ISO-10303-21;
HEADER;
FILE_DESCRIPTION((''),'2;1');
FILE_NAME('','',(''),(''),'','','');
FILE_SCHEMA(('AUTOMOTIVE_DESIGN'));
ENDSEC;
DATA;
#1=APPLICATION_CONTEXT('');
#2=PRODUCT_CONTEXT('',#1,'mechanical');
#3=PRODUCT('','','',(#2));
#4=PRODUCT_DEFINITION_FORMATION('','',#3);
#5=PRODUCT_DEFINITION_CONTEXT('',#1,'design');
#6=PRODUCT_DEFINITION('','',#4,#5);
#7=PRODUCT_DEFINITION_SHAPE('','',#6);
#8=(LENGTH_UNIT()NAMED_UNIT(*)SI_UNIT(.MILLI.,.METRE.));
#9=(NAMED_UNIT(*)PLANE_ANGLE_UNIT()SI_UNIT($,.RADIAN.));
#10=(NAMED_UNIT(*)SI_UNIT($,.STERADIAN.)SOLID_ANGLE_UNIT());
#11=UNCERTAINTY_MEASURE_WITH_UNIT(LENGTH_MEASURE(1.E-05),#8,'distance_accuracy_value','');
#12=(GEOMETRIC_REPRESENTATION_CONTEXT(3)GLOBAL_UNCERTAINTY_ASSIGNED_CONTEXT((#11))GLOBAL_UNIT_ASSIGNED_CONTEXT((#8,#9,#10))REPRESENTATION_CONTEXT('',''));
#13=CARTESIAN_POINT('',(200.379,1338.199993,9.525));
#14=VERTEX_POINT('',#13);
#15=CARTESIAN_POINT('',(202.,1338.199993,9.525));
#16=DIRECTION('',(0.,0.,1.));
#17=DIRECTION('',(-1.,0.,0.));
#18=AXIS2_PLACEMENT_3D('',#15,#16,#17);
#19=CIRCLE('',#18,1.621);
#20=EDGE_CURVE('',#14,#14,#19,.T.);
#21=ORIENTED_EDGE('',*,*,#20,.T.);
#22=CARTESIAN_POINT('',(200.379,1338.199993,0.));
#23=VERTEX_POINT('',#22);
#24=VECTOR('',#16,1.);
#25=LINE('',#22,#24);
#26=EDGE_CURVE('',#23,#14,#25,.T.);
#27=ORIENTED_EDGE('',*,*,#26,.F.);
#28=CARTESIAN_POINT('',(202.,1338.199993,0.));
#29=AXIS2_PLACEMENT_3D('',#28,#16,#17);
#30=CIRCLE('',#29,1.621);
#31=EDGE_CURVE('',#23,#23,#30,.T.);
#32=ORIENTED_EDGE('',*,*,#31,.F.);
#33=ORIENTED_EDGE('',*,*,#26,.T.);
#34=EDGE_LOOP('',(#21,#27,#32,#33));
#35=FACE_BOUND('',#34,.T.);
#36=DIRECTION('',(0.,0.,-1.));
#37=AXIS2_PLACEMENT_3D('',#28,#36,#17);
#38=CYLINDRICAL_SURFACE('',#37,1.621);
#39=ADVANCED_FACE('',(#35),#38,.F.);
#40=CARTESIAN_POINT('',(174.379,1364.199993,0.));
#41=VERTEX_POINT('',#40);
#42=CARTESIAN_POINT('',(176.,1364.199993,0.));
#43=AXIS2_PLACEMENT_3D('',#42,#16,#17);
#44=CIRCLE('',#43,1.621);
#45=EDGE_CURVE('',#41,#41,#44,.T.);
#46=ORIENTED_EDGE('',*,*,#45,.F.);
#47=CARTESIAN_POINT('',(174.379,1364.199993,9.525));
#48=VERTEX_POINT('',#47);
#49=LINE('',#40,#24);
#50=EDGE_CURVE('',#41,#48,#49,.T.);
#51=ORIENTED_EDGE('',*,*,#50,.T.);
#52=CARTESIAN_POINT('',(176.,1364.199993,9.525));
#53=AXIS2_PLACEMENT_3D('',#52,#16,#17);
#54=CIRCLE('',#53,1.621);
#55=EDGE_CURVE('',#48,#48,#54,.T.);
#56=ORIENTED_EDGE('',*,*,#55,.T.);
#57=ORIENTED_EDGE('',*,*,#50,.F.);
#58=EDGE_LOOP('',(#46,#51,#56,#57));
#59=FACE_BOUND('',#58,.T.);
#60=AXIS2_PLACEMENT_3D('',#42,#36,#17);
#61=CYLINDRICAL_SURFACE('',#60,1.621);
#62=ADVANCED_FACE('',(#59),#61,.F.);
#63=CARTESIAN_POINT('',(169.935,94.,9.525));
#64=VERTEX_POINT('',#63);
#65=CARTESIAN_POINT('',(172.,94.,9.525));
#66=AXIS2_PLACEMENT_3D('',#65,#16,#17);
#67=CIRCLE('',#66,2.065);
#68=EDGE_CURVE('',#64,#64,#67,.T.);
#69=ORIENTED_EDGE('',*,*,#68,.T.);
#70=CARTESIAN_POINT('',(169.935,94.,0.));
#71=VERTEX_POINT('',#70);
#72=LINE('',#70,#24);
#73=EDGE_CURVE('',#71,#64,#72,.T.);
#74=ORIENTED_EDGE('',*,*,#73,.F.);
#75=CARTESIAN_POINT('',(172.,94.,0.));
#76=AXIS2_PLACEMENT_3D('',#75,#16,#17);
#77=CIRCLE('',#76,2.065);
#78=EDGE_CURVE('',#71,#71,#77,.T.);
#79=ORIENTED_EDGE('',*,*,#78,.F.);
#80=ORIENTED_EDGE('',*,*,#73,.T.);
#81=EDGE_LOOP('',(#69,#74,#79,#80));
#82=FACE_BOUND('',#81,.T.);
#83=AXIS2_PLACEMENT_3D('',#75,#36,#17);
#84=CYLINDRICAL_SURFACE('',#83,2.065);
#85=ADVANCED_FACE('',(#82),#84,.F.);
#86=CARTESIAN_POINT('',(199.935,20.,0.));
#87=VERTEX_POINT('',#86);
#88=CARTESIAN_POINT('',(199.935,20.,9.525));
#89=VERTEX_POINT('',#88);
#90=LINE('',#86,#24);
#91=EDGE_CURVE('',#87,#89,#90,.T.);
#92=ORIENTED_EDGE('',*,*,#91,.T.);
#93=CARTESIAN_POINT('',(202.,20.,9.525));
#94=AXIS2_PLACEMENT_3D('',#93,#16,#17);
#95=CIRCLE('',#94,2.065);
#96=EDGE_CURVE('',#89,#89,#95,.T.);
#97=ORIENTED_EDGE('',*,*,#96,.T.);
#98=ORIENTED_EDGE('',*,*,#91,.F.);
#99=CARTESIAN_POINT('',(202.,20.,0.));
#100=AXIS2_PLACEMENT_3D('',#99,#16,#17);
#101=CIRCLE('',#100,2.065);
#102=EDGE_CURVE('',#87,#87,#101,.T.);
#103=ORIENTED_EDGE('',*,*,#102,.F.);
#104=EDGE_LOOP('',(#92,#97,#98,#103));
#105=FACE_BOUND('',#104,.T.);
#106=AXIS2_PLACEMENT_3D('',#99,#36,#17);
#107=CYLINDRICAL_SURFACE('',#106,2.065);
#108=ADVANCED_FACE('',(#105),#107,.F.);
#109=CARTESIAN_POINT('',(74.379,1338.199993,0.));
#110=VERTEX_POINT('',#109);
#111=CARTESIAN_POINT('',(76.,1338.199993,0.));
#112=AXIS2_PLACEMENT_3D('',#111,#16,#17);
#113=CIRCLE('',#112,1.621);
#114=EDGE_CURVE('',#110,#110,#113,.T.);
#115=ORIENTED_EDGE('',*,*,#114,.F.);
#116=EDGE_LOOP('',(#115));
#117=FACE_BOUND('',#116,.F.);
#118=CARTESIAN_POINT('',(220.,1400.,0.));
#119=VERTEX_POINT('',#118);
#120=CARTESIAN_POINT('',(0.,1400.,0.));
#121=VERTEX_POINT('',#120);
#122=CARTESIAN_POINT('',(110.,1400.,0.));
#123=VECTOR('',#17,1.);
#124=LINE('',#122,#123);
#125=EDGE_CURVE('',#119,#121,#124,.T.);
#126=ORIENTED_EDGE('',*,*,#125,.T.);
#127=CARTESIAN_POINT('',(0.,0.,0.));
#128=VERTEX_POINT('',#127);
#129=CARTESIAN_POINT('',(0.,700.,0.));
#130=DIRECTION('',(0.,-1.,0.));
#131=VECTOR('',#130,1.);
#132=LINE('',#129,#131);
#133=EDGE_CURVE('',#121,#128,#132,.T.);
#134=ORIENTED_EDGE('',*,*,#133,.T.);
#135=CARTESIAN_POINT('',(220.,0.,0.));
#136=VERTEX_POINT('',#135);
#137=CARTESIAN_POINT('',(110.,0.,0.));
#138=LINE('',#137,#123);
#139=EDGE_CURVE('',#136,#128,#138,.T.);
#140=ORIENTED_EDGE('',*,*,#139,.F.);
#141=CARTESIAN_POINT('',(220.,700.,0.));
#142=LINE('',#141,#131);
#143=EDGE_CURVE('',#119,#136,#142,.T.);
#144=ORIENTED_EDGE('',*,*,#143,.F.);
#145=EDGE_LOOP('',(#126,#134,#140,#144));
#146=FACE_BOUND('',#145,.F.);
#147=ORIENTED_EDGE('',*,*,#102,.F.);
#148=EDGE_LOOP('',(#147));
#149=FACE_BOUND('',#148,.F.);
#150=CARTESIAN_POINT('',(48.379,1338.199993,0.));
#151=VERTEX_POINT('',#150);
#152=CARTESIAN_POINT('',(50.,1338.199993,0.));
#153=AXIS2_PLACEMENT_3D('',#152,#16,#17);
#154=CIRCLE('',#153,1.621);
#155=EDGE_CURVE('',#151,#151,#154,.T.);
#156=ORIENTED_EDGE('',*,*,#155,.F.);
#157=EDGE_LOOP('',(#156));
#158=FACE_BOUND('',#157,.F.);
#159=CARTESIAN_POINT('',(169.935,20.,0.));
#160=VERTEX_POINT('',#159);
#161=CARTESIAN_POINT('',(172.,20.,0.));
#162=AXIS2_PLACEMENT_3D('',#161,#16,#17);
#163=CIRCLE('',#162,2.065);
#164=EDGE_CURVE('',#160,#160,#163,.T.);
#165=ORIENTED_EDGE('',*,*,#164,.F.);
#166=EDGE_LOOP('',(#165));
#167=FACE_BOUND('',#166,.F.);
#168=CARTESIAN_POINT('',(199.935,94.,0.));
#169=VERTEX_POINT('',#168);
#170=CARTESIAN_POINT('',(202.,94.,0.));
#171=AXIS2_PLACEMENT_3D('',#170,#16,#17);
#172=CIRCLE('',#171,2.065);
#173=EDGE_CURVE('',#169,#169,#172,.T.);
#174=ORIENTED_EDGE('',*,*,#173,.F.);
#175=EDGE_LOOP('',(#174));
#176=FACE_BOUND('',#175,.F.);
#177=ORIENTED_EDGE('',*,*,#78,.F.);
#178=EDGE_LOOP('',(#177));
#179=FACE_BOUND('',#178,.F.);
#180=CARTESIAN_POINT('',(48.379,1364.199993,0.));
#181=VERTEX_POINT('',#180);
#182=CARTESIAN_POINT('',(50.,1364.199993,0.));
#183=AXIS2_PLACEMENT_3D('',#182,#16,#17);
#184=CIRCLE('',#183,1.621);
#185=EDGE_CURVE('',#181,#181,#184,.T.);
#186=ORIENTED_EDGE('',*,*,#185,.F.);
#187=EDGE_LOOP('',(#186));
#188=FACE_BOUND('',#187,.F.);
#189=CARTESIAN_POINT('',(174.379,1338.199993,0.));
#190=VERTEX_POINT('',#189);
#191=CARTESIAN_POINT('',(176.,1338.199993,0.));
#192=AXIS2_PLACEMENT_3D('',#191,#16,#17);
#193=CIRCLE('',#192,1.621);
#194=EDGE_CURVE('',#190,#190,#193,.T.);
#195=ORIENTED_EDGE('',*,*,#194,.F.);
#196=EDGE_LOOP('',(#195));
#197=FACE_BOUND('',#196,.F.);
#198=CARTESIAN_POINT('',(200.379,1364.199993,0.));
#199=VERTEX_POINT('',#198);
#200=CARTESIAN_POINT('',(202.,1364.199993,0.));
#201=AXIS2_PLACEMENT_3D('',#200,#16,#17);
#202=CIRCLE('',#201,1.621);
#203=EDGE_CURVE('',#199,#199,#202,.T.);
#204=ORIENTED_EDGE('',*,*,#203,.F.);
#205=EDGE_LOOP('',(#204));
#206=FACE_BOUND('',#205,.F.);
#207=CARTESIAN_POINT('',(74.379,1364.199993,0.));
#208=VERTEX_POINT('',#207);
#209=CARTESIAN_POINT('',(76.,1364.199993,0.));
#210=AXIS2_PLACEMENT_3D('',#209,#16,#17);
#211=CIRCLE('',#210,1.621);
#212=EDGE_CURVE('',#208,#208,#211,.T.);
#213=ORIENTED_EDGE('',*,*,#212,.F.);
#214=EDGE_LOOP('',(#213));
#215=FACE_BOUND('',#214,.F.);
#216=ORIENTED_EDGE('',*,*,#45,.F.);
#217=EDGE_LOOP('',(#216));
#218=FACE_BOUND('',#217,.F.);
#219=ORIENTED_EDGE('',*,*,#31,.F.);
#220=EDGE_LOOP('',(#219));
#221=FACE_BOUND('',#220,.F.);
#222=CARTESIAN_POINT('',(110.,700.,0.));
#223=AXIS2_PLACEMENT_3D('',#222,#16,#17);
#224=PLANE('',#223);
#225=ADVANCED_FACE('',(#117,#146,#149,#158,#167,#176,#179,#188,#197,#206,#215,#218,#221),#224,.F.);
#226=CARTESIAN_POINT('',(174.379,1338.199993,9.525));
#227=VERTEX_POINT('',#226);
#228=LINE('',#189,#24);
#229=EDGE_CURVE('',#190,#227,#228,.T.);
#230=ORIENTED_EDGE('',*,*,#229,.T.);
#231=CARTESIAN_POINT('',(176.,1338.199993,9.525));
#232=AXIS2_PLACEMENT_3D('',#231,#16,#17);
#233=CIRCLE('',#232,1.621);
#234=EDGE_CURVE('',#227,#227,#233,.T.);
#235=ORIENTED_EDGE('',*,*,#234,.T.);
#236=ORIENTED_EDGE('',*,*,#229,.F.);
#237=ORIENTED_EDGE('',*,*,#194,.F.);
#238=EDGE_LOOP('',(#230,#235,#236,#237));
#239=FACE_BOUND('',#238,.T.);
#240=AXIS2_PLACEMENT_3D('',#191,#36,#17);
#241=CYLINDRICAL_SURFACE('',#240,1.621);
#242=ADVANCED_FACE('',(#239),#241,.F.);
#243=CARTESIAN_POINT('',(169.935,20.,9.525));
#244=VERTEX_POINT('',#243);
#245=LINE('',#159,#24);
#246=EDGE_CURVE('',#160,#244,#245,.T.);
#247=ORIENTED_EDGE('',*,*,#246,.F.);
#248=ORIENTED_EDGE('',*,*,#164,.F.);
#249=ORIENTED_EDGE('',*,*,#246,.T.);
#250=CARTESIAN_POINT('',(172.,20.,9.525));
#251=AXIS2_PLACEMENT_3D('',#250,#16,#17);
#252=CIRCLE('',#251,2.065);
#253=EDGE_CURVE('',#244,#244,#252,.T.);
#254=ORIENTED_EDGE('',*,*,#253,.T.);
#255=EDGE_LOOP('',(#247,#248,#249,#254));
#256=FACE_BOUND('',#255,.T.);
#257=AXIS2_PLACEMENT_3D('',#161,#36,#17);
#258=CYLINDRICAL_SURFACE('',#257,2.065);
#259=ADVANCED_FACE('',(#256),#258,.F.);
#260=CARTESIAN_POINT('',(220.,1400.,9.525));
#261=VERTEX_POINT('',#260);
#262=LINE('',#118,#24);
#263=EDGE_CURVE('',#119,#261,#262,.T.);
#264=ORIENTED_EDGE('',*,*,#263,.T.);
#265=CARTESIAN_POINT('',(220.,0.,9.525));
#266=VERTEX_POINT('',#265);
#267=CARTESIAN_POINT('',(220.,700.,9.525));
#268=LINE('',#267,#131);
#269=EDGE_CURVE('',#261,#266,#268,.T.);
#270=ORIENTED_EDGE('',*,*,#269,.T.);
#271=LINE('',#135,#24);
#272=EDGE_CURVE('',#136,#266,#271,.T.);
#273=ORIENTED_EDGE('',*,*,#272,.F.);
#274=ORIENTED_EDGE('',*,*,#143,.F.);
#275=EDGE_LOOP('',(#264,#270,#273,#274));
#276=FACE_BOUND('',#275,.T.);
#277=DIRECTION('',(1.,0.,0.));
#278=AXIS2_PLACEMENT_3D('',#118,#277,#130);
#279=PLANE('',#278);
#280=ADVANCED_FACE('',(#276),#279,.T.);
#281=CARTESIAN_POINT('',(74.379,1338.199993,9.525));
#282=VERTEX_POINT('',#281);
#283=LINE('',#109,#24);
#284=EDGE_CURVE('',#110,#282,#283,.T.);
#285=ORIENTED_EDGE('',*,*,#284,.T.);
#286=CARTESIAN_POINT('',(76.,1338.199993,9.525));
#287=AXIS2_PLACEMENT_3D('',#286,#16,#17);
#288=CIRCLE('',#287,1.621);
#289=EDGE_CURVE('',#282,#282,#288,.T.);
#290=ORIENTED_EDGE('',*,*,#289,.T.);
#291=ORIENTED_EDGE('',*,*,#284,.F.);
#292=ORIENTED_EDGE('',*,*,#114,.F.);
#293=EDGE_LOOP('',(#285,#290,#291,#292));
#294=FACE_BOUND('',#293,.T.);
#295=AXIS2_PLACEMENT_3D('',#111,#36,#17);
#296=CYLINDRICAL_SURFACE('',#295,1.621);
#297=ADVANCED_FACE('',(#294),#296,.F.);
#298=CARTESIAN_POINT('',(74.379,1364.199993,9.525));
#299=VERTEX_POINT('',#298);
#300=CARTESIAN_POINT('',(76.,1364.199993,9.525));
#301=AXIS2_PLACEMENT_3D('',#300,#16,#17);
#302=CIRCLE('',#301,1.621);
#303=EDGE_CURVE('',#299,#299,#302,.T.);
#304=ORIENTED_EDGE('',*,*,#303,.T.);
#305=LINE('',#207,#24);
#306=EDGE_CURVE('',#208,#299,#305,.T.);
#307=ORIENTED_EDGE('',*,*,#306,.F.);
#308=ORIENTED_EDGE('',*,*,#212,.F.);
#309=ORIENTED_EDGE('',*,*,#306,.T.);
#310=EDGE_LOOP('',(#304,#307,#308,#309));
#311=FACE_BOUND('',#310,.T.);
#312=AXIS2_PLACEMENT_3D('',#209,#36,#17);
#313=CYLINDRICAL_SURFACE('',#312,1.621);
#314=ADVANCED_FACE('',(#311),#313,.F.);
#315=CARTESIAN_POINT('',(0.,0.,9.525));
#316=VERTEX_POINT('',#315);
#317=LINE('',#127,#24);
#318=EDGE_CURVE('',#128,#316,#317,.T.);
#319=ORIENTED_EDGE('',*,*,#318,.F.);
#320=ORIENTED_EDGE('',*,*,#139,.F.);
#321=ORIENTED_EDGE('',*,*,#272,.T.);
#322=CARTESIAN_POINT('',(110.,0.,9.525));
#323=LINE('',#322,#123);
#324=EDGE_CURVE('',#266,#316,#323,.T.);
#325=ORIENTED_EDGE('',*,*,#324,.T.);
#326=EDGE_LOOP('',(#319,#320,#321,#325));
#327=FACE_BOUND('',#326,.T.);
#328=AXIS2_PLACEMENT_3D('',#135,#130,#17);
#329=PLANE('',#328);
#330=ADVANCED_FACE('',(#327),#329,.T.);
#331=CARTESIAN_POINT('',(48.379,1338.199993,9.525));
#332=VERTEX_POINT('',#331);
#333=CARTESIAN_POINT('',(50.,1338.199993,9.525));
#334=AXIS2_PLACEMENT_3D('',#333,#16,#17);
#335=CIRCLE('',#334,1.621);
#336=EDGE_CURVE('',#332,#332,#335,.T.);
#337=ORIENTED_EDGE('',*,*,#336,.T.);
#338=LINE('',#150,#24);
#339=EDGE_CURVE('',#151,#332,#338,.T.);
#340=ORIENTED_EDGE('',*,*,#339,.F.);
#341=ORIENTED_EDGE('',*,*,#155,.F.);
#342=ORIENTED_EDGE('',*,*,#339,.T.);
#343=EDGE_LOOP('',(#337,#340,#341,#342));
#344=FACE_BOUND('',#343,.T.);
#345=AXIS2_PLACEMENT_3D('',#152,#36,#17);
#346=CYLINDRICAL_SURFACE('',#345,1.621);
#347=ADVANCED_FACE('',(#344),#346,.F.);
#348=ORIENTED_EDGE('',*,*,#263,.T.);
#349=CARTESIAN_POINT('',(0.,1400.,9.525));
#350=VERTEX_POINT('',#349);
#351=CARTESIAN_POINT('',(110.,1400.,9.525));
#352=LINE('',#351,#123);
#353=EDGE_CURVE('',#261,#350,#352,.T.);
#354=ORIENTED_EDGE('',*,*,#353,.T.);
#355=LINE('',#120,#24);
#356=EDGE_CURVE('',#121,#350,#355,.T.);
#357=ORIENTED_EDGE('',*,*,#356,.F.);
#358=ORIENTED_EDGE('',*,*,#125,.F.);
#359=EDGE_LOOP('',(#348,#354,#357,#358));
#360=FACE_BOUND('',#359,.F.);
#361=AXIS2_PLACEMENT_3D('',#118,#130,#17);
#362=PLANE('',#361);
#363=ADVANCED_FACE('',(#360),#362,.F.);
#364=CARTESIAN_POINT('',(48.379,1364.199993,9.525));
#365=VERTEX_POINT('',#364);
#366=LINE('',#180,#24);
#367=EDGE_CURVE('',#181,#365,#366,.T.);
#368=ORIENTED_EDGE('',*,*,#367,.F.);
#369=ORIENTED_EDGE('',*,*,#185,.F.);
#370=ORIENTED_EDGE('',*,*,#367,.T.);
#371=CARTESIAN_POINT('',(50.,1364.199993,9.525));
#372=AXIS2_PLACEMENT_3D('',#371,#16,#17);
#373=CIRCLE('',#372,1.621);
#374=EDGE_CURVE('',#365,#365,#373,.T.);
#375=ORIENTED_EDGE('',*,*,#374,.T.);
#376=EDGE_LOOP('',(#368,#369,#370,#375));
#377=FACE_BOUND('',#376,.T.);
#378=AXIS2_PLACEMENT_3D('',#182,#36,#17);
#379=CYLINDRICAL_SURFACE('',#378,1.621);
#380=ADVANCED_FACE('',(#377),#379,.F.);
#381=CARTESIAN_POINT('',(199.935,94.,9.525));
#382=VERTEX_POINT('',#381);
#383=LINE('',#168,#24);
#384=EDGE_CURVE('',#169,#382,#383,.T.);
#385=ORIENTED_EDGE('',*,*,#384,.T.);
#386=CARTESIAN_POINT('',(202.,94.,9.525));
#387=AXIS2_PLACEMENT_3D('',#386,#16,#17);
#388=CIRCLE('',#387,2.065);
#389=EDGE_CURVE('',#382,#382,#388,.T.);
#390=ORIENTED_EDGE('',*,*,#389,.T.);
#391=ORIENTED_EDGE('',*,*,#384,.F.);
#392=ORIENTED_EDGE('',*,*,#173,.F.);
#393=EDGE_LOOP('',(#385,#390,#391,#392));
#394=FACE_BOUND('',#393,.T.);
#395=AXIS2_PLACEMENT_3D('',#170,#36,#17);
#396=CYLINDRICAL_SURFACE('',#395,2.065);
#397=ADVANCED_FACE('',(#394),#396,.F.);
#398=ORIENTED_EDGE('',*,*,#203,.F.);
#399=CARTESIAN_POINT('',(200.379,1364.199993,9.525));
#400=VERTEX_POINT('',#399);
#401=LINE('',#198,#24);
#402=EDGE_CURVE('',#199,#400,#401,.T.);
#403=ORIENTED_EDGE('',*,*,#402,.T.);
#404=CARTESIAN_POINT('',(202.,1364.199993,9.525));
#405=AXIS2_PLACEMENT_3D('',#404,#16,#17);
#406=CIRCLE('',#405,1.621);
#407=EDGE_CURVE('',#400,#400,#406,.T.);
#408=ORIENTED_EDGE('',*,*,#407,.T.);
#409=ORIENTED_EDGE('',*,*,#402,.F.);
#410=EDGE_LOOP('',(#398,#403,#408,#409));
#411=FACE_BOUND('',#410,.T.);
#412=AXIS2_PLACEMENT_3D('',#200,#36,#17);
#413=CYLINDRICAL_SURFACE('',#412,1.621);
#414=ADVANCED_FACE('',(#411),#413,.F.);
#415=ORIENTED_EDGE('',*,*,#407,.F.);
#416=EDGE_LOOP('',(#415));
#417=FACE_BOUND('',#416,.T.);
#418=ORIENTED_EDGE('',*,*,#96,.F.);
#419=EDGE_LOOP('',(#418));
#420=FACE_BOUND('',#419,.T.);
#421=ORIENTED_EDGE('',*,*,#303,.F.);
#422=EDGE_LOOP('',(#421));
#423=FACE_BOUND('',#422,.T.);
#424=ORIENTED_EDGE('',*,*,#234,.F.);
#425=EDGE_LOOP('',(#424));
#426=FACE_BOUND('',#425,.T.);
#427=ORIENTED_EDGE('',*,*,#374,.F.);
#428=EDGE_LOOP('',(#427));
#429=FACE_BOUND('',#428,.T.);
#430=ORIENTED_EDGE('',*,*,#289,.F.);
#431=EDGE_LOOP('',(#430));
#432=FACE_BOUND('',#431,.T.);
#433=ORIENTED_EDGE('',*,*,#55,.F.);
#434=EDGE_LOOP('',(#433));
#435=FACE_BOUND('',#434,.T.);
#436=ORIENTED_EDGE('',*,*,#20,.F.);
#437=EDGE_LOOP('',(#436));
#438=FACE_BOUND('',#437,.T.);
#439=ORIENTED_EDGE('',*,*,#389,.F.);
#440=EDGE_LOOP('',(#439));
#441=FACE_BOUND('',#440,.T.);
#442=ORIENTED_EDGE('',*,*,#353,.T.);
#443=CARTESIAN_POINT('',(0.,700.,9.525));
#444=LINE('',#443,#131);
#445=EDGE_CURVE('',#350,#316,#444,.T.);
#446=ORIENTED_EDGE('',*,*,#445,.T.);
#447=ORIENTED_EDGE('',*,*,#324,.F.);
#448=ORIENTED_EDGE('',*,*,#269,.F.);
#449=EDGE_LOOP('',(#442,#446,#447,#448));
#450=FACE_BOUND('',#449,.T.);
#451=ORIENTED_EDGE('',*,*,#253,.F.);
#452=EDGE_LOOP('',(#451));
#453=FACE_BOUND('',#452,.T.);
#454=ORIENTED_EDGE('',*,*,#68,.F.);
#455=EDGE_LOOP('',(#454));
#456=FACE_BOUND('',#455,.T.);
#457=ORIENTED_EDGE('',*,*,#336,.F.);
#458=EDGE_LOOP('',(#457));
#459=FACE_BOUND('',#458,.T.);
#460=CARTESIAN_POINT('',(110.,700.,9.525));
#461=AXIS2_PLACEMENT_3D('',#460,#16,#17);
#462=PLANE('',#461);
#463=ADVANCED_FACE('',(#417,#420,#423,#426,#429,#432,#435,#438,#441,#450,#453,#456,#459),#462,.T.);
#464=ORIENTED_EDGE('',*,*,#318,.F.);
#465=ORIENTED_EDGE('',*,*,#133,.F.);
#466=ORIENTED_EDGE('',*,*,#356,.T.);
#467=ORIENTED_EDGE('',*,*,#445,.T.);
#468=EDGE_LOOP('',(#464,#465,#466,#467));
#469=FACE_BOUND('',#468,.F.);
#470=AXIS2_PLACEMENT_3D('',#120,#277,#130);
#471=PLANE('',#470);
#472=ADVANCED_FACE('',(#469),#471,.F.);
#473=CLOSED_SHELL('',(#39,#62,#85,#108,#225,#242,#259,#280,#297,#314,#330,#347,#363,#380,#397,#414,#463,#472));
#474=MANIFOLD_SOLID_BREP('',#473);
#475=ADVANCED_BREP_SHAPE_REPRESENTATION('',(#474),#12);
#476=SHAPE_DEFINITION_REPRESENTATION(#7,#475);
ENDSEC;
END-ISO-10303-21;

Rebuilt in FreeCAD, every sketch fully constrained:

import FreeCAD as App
import Part
import Sketcher

V = App.Vector


def add_polygon(sketch, points):
    """Adds a closed chain of lines whose ends are joined by coincident constraints."""
    first, n = sketch.GeometryCount, len(points)
    for a, b in zip(points, points[1:] + points[:1]):
        sketch.addGeometry(Part.LineSegment(App.Vector(*a, 0), App.Vector(*b, 0)), False)
    for i in range(n):
        sketch.addConstraint(Sketcher.Constraint("Coincident", first + i, 2, first + (i + 1) % n, 1))

doc = App.newDocument("Part")
body = doc.addObject("PartDesign::Body", "Body")

sketch1 = body.newObject("Sketcher::SketchObject", "Sketch")
sketch1.AttachmentSupport = (doc.getObject("XY_Plane"), [""])
sketch1.MapMode = "FlatFace"
add_polygon(sketch1, [(220, 0), (220, 1400), (0, 1400), (0, 0)])
sketch1.addGeometry(Part.Circle(V(202, 1364.199993, 0), V(0, 0, 1), 1.621), False)
sketch1.addGeometry(Part.Circle(V(202, 1338.199993, 0), V(0, 0, 1), 1.621), False)
sketch1.addGeometry(Part.Circle(V(176, 1364.199993, 0), V(0, 0, 1), 1.621), False)
sketch1.addGeometry(Part.Circle(V(176, 1338.199993, 0), V(0, 0, 1), 1.621), False)
sketch1.addGeometry(Part.Circle(V(76, 1364.199993, 0), V(0, 0, 1), 1.621), False)
sketch1.addGeometry(Part.Circle(V(76, 1338.199993, 0), V(0, 0, 1), 1.621), False)
sketch1.addGeometry(Part.Circle(V(50, 1364.199993, 0), V(0, 0, 1), 1.621), False)
sketch1.addGeometry(Part.Circle(V(50, 1338.199993, 0), V(0, 0, 1), 1.621), False)
sketch1.addGeometry(Part.Circle(V(202, 94, 0), V(0, 0, 1), 2.065), False)
sketch1.addGeometry(Part.Circle(V(202, 20, 0), V(0, 0, 1), 2.065), False)
sketch1.addGeometry(Part.Circle(V(172, 94, 0), V(0, 0, 1), 2.065), False)
sketch1.addGeometry(Part.Circle(V(172, 20, 0), V(0, 0, 1), 2.065), False)
sketch1.addConstraint([
    Sketcher.Constraint("Vertical", 0),
    Sketcher.Constraint("Horizontal", 1),
    Sketcher.Constraint("Vertical", 2),
    Sketcher.Constraint("Horizontal", 3),
    Sketcher.Constraint("Coincident", 2, 2, -1, 1),
    Sketcher.Constraint("Equal", 4, 5),
    Sketcher.Constraint("Equal", 5, 6),
    Sketcher.Constraint("Equal", 6, 7),
    Sketcher.Constraint("Equal", 7, 8),
    Sketcher.Constraint("Equal", 8, 9),
    Sketcher.Constraint("Equal", 9, 10),
    Sketcher.Constraint("Equal", 10, 11),
    Sketcher.Constraint("Equal", 12, 13),
    Sketcher.Constraint("Equal", 13, 14),
    Sketcher.Constraint("Equal", 14, 15),
    Sketcher.Constraint("Horizontal", 4, 3, 6, 3),
    Sketcher.Constraint("Horizontal", 5, 3, 7, 3),
    Sketcher.Constraint("Horizontal", 6, 3, 8, 3),
    Sketcher.Constraint("Horizontal", 7, 3, 9, 3),
    Sketcher.Constraint("Horizontal", 8, 3, 10, 3),
    Sketcher.Constraint("Horizontal", 9, 3, 11, 3),
    Sketcher.Constraint("Horizontal", 12, 3, 14, 3),
    Sketcher.Constraint("Horizontal", 13, 3, 15, 3),
    Sketcher.Constraint("Vertical", 4, 3, 5, 3),
    Sketcher.Constraint("Vertical", 6, 3, 7, 3),
    Sketcher.Constraint("Vertical", 8, 3, 9, 3),
    Sketcher.Constraint("Vertical", 10, 3, 11, 3),
    Sketcher.Constraint("Vertical", 5, 3, 12, 3),
    Sketcher.Constraint("Vertical", 12, 3, 13, 3),
    Sketcher.Constraint("Vertical", 14, 3, 15, 3),
    Sketcher.Constraint("Diameter", 12, 4.13),
    Sketcher.Constraint("DistanceX", 1, 2, 1, 1, 220.0),
    Sketcher.Constraint("DistanceY", 0, 1, 0, 2, 1400.0),
    Sketcher.Constraint("Diameter", 4, 3.242),
    Sketcher.Constraint("DistanceX", -1, 1, 4, 3, 202.0),
    Sketcher.Constraint("DistanceX", -1, 1, 6, 3, 176.0),
    Sketcher.Constraint("DistanceX", -1, 1, 8, 3, 76.0),
    Sketcher.Constraint("DistanceX", -1, 1, 10, 3, 50.0),
    Sketcher.Constraint("DistanceY", -1, 1, 12, 3, 94.0),
    Sketcher.Constraint("DistanceY", -1, 1, 13, 3, 20.0),
    Sketcher.Constraint("DistanceX", -1, 1, 14, 3, 172.0),
    Sketcher.Constraint("DistanceY", 5, 3, 4, 3, 26.0),
    Sketcher.Constraint("DistanceY", -1, 1, 4, 3, 1364.199993),
])
pad1 = body.newObject("PartDesign::Pad", "Pad")
pad1.Profile = sketch1
pad1.Length = 9.525

doc.recompute()
